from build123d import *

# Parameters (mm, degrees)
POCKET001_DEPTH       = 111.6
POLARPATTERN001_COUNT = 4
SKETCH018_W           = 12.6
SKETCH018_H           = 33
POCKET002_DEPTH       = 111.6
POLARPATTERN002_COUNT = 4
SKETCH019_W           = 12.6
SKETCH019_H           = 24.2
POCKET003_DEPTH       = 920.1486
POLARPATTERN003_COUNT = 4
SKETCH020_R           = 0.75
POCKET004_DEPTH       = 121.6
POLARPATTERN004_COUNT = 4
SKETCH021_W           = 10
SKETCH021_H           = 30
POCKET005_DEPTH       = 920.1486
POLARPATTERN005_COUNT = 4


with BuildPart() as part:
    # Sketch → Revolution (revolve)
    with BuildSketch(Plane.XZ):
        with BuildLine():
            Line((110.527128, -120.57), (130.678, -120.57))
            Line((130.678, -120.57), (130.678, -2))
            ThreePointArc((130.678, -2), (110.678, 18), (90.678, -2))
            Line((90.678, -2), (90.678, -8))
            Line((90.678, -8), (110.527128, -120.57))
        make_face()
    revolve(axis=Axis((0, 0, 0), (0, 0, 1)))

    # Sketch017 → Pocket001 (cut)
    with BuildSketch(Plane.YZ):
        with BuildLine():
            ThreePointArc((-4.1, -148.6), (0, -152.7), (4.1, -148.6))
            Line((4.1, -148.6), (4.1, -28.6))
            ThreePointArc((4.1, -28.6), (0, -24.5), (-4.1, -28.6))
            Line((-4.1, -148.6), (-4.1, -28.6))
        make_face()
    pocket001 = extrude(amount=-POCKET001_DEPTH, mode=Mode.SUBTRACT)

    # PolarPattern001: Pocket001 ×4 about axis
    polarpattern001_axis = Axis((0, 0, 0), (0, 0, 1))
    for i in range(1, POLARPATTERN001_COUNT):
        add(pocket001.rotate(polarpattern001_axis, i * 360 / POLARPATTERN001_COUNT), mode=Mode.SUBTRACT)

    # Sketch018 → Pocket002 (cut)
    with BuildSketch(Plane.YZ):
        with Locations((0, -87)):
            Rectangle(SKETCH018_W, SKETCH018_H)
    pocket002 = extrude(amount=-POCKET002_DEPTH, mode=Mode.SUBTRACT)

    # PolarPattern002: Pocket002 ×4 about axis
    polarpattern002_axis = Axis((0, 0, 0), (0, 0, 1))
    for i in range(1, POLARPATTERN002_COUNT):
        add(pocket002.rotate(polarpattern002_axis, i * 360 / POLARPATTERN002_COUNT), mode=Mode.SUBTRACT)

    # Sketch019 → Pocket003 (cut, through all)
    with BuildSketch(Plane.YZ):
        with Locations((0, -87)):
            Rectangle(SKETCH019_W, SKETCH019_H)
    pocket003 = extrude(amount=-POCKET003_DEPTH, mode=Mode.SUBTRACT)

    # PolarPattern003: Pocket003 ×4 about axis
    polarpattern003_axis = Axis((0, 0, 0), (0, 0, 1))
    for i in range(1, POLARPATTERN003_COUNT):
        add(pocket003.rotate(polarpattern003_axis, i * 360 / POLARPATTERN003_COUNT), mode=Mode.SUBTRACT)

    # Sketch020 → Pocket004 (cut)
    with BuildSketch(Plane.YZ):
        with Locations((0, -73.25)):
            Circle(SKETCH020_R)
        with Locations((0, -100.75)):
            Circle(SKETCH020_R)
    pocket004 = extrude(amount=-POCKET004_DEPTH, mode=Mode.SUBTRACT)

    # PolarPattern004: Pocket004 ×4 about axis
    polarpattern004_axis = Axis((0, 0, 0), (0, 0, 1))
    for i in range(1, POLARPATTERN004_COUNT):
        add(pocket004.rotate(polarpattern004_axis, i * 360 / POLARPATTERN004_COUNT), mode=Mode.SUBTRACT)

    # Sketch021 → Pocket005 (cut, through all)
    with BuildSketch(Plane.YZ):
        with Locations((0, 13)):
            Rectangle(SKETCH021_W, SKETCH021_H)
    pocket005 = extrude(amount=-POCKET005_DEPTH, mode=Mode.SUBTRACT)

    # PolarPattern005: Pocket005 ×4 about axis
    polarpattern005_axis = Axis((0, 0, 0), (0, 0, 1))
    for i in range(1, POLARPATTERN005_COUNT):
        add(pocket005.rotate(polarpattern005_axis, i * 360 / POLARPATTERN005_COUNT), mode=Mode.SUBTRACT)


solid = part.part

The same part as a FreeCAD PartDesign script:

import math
import FreeCAD as App
import Part
import Sketcher

V = App.Vector
Q = App.Units.Quantity


def add_polygon(sketch, points):
    """Adds a closed chain of lines whose ends are joined by coincident constraints."""
    first, n = sketch.GeometryCount, len(points)
    for a, b in zip(points, points[1:] + points[:1]):
        sketch.addGeometry(Part.LineSegment(App.Vector(*a, 0), App.Vector(*b, 0)), False)
    for i in range(n):
        sketch.addConstraint(Sketcher.Constraint("Coincident", first + i, 2, first + (i + 1) % n, 1))

doc = App.newDocument("Part")
body = doc.addObject("PartDesign::Body", "Body")

# Sketch on XZ plane
sketch1 = doc.addObject("Sketcher::SketchObject", "Sketch")
body.addObject(sketch1)
sketch1.AttachmentSupport = (doc.XZ_Plane, [""])
sketch1.MapMode = "FlatFace"
sketch1.addGeometry([
    Part.LineSegment(V(111, -121, 0), V(131, -121, 0)),  # 0
    Part.LineSegment(V(131, -121, 0), V(131, -2, 0)),  # 1
    Part.ArcOfCircle(Part.Circle(V(111, -2, 0), V(0, 0, 1), 20), math.radians(0), math.radians(180)),  # 2
    Part.LineSegment(V(91, -2, 0), V(91, -8, 0)),  # 3
    Part.LineSegment(V(91, -8, 0), V(111, -121, 0)),  # 4
], False)
sketch1.addConstraint([
    Sketcher.Constraint("Coincident", 0, 2, 1, 1),
    Sketcher.Constraint("Tangent", 1, 2, 2, 1),
    Sketcher.Constraint("Tangent", 2, 2, 3, 1),
    Sketcher.Constraint("Coincident", 3, 2, 4, 1),
    Sketcher.Constraint("Coincident", 4, 2, 0, 1),
    Sketcher.Constraint("Horizontal", 0),
    Sketcher.Constraint("Vertical", 1),
    Sketcher.Constraint("Vertical", 3),
    Sketcher.Constraint("Radius", 2, Q("20 mm")),
    Sketcher.Constraint("DistanceY", 3, 2, 3, 1, Q("6 mm")),
    Sketcher.Constraint("Angle", 4, Q("-80 deg")),
    Sketcher.Constraint("DistanceY", 2, 3, -1, 1, Q("2 mm")),
    Sketcher.Constraint("DistanceY", 1, 1, 1, 2, Q("118.57 mm")),
    Sketcher.Constraint("DistanceX", -1, 1, 2, 3, Q("110.678 mm")),
])
revolution = doc.addObject("PartDesign::Revolution", "Revolution")
body.addObject(revolution)
revolution.Profile = sketch1
revolution.ReferenceAxis = (sketch1, ["V_Axis"])
revolution.Angle = 360

# Sketch on YZ plane
sketch2 = doc.addObject("Sketcher::SketchObject", "Sketch001")
body.addObject(sketch2)
sketch2.AttachmentSupport = (doc.YZ_Plane, [""])
sketch2.MapMode = "FlatFace"
sketch2.addGeometry([
    Part.ArcOfCircle(Part.Circle(V(0, -148.6, 0), V(0, 0, 1), 4.1), math.radians(180), math.radians(360)),
    Part.LineSegment(V(4.1, -148.6, 0), V(4.1, -28.6, 0)),
    Part.ArcOfCircle(Part.Circle(V(0, -28.6, 0), V(0, 0, 1), 4.1), math.radians(0), math.radians(180)),
    Part.LineSegment(V(-4.1, -28.6, 0), V(-4.1, -148.6, 0)),
], False)
sketch2.addConstraint([
    Sketcher.Constraint("Tangent", 0, 2, 1, 1),
    Sketcher.Constraint("Tangent", 1, 2, 2, 1),
    Sketcher.Constraint("Tangent", 2, 2, 3, 1),
    Sketcher.Constraint("Tangent", 3, 2, 0, 1),
    Sketcher.Constraint("Vertical", 1),
    Sketcher.Constraint("Vertical", 3),
    Sketcher.Constraint("PointOnObject", 0, 3, -2),
    Sketcher.Constraint("Radius", 0, Q("4.1 mm")),
    Sketcher.Constraint("DistanceY", 1, 1, 1, 2, Q("120 mm")),
    Sketcher.Constraint("DistanceY", 0, 3, -1, 1, Q("148.6 mm")),
])
pocket1 = doc.addObject("PartDesign::Pocket", "Pocket")
body.addObject(pocket1)
pocket1.Profile = sketch2
pocket1.Length = 111.6
doc.recompute()

polarpattern = doc.addObject("PartDesign::PolarPattern", "PolarPattern")
body.addObject(polarpattern)
polarpattern.Originals = [pocket1]
polarpattern.Axis = (doc.Z_Axis, [""])
polarpattern.Angle = 360
polarpattern.Occurrences = 4
body.Tip = polarpattern

# Sketch on YZ plane
sketch3 = doc.addObject("Sketcher::SketchObject", "Sketch002")
body.addObject(sketch3)
sketch3.AttachmentSupport = (doc.YZ_Plane, [""])
sketch3.MapMode = "FlatFace"
add_polygon(sketch3, [(-6, -70), (-6, -104), (6, -104), (6, -70)])  # lines 0-3
sketch3.addConstraint([
    Sketcher.Constraint("Vertical", 0),
    Sketcher.Constraint("Horizontal", 1),
    Sketcher.Constraint("Vertical", 2),
    Sketcher.Constraint("Horizontal", 3),
    Sketcher.Constraint("DistanceY", 0, 2, 0, 1, Q("33 mm")),
    Sketcher.Constraint("DistanceX", 1, 1, 1, 2, Q("12.6 mm")),
    Sketcher.Constraint("DistanceX", 0, 2, -1, 1, Q("6.3 mm")),
    Sketcher.Constraint("DistanceY", 0, 2, -1, 1, Q("103.5 mm")),
])
pocket2 = doc.addObject("PartDesign::Pocket", "Pocket001")
body.addObject(pocket2)
pocket2.Profile = sketch3
pocket2.Length = 111.6
doc.recompute()

polarpattern2 = doc.addObject("PartDesign::PolarPattern", "PolarPattern001")
body.addObject(polarpattern2)
polarpattern2.Originals = [pocket2]
polarpattern2.Axis = (doc.Z_Axis, [""])
polarpattern2.Angle = 360
polarpattern2.Occurrences = 4
body.Tip = polarpattern2

# Sketch on YZ plane
sketch4 = doc.addObject("Sketcher::SketchObject", "Sketch003")
body.addObject(sketch4)
sketch4.AttachmentSupport = (doc.YZ_Plane, [""])
sketch4.MapMode = "FlatFace"
add_polygon(sketch4, [(-6, -75), (-6, -99), (6, -99), (6, -75)])  # lines 0-3
sketch4.addConstraint([
    Sketcher.Constraint("Vertical", 0),
    Sketcher.Constraint("Horizontal", 1),
    Sketcher.Constraint("Vertical", 2),
    Sketcher.Constraint("Horizontal", 3),
    Sketcher.Constraint("DistanceX", 1, 1, 1, 2, Q("12.6 mm")),
    Sketcher.Constraint("DistanceY", 0, 2, 0, 1, Q("24.2 mm")),
    Sketcher.Constraint("DistanceX", 0, 2, -1, 1, Q("6.3 mm")),
    Sketcher.Constraint("DistanceY", 0, 2, -1, 1, Q("99.1 mm")),
])
pocket3 = doc.addObject("PartDesign::Pocket", "Pocket002")
body.addObject(pocket3)
pocket3.Profile = sketch4
pocket3.Type = "ThroughAll"
doc.recompute()

polarpattern3 = doc.addObject("PartDesign::PolarPattern", "PolarPattern002")
body.addObject(polarpattern3)
polarpattern3.Originals = [pocket3]
polarpattern3.Axis = (doc.Z_Axis, [""])
polarpattern3.Angle = 360
polarpattern3.Occurrences = 4
body.Tip = polarpattern3

# Sketch on YZ plane
sketch5 = doc.addObject("Sketcher::SketchObject", "Sketch004")
body.addObject(sketch5)
sketch5.AttachmentSupport = (doc.YZ_Plane, [""])
sketch5.MapMode = "FlatFace"
sketch5.addGeometry([
    Part.Circle(V(0, -73.2, 0), V(0, 0, 1), 0.8),
    Part.Circle(V(0, -100.8, 0), V(0, 0, 1), 0.8),
], False)
sketch5.addConstraint([
    Sketcher.Constraint("Equal", 0, 1),
    Sketcher.Constraint("PointOnObject", 0, 3, -2),
    Sketcher.Constraint("PointOnObject", 1, 3, -2),
    Sketcher.Constraint("Diameter", 0, Q("1.5 mm")),
    Sketcher.Constraint("DistanceY", 1, 3, 0, 3, Q("27.5 mm")),
    Sketcher.Constraint("DistanceY", 0, 3, -1, 1, Q("73.25 mm")),
])
pocket4 = doc.addObject("PartDesign::Pocket", "Pocket003")
body.addObject(pocket4)
pocket4.Profile = sketch5
pocket4.Length = 121.6
doc.recompute()

polarpattern4 = doc.addObject("PartDesign::PolarPattern", "PolarPattern003")
body.addObject(polarpattern4)
polarpattern4.Originals = [pocket4]
polarpattern4.Axis = (doc.Z_Axis, [""])
polarpattern4.Angle = 360
polarpattern4.Occurrences = 4
body.Tip = polarpattern4

# Sketch on YZ plane
sketch6 = doc.addObject("Sketcher::SketchObject", "Sketch005")
body.addObject(sketch6)
sketch6.AttachmentSupport = (doc.YZ_Plane, [""])
sketch6.MapMode = "FlatFace"
add_polygon(sketch6, [(-5, 28), (-5, -2), (5, -2), (5, 28)])  # lines 0-3
sketch6.addConstraint([
    Sketcher.Constraint("Vertical", 0),
    Sketcher.Constraint("Horizontal", 1),
    Sketcher.Constraint("Vertical", 2),
    Sketcher.Constraint("Horizontal", 3),
    Sketcher.Constraint("DistanceX", 1, 1, 1, 2, Q("10 mm")),
    Sketcher.Constraint("DistanceY", 0, 2, 0, 1, Q("30 mm")),
    Sketcher.Constraint("DistanceX", 0, 2, -1, 1, Q("5 mm")),
    Sketcher.Constraint("DistanceY", 0, 2, -1, 1, Q("2 mm")),
])
pocket5 = doc.addObject("PartDesign::Pocket", "Pocket004")
body.addObject(pocket5)
pocket5.Profile = sketch6
pocket5.Type = "ThroughAll"
doc.recompute()

polarpattern5 = doc.addObject("PartDesign::PolarPattern", "PolarPattern004")
body.addObject(polarpattern5)
polarpattern5.Originals = [pocket5]
polarpattern5.Axis = (doc.Z_Axis, [""])
polarpattern5.Angle = 360
polarpattern5.Occurrences = 4
body.Tip = polarpattern5

doc.recompute()
